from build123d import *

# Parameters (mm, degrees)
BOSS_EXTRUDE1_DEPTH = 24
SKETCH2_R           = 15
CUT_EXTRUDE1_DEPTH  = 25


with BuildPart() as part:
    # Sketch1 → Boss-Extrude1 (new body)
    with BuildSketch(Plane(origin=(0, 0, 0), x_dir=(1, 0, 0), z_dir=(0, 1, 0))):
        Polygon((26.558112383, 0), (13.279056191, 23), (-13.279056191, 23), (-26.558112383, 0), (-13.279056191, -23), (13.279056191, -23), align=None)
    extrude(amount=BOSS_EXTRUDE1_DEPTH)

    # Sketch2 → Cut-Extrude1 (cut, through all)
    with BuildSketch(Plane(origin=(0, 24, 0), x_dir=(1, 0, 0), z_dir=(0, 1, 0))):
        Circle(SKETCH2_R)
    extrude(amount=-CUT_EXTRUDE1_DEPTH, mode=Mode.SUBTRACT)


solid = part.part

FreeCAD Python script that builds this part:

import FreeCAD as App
import Part
import Sketcher

V = App.Vector
Q = App.Units.Quantity

doc = App.newDocument("Part")
body = doc.addObject("PartDesign::Body", "Body")

sketch1 = body.newObject("Sketcher::SketchObject", "Sketch")
sketch1.AttachmentSupport = (doc.getObject("XZ_Plane"), [""])
sketch1.MapMode = "FlatFace"
sketch1.addGeometry([
    Part.LineSegment(V(27, 0, 0), V(13, -23, 0)),
    Part.LineSegment(V(13, -23, 0), V(-13, -23, 0)),
    Part.LineSegment(V(-13, -23, 0), V(-27, 0, 0)),
    Part.LineSegment(V(-27, 0, 0), V(-13, 23, 0)),
    Part.LineSegment(V(-13, 23, 0), V(13, 23, 0)),
    Part.LineSegment(V(13, 23, 0), V(27, 0, 0)),
], False)
sketch1.addConstraint([
    Sketcher.Constraint("Coincident", 0, 2, 1, 1),
    Sketcher.Constraint("Coincident", 1, 2, 2, 1),
    Sketcher.Constraint("Coincident", 2, 2, 3, 1),
    Sketcher.Constraint("Coincident", 3, 2, 4, 1),
    Sketcher.Constraint("Coincident", 4, 2, 5, 1),
    Sketcher.Constraint("Coincident", 5, 2, 0, 1),
    Sketcher.Constraint("Horizontal", 1),
    Sketcher.Constraint("Horizontal", 4),
    Sketcher.Constraint("Symmetric", 0, 2, 3, 2, -1, 1),
    Sketcher.Constraint("Symmetric", 2, 2, 5, 2, -1, 1),
    Sketcher.Constraint("PointOnObject", 2, 2, -1),
    Sketcher.Constraint("Parallel", 2, 5),
    Sketcher.Constraint("Vertical", 1, 2, 3, 2),
    Sketcher.Constraint("Angle", 0, Q("-120 deg")),
    Sketcher.Constraint("DistanceY", 0, 2, -1, 1, 23.0),
    Sketcher.Constraint("DistanceX", 1, 2, 1, 1, 26.558112),
])
pad1 = body.newObject("PartDesign::Pad", "Pad")
pad1.Profile = sketch1
pad1.Length = 24
pad1.Reversed = True

sketch2 = body.newObject("Sketcher::SketchObject", "Sketch001")
sketch2.AttachmentSupport = (doc.getObject("XZ_Plane"), [""])
sketch2.MapMode = "FlatFace"
sketch2.AttachmentOffset = App.Placement(V(0, 0, -24), App.Rotation())
sketch2.addGeometry(Part.Circle(V(0, 0, 0), V(0, 0, 1), 15), False)
sketch2.addConstraint([
    Sketcher.Constraint("Coincident", 0, 3, -1, 1),
    Sketcher.Constraint("Diameter", 0, 30.0),
])
pocket1 = body.newObject("PartDesign::Pocket", "Pocket")
pocket1.Profile = sketch2
pocket1.Type = "ThroughAll"
pocket1.Reversed = True

doc.recompute()
